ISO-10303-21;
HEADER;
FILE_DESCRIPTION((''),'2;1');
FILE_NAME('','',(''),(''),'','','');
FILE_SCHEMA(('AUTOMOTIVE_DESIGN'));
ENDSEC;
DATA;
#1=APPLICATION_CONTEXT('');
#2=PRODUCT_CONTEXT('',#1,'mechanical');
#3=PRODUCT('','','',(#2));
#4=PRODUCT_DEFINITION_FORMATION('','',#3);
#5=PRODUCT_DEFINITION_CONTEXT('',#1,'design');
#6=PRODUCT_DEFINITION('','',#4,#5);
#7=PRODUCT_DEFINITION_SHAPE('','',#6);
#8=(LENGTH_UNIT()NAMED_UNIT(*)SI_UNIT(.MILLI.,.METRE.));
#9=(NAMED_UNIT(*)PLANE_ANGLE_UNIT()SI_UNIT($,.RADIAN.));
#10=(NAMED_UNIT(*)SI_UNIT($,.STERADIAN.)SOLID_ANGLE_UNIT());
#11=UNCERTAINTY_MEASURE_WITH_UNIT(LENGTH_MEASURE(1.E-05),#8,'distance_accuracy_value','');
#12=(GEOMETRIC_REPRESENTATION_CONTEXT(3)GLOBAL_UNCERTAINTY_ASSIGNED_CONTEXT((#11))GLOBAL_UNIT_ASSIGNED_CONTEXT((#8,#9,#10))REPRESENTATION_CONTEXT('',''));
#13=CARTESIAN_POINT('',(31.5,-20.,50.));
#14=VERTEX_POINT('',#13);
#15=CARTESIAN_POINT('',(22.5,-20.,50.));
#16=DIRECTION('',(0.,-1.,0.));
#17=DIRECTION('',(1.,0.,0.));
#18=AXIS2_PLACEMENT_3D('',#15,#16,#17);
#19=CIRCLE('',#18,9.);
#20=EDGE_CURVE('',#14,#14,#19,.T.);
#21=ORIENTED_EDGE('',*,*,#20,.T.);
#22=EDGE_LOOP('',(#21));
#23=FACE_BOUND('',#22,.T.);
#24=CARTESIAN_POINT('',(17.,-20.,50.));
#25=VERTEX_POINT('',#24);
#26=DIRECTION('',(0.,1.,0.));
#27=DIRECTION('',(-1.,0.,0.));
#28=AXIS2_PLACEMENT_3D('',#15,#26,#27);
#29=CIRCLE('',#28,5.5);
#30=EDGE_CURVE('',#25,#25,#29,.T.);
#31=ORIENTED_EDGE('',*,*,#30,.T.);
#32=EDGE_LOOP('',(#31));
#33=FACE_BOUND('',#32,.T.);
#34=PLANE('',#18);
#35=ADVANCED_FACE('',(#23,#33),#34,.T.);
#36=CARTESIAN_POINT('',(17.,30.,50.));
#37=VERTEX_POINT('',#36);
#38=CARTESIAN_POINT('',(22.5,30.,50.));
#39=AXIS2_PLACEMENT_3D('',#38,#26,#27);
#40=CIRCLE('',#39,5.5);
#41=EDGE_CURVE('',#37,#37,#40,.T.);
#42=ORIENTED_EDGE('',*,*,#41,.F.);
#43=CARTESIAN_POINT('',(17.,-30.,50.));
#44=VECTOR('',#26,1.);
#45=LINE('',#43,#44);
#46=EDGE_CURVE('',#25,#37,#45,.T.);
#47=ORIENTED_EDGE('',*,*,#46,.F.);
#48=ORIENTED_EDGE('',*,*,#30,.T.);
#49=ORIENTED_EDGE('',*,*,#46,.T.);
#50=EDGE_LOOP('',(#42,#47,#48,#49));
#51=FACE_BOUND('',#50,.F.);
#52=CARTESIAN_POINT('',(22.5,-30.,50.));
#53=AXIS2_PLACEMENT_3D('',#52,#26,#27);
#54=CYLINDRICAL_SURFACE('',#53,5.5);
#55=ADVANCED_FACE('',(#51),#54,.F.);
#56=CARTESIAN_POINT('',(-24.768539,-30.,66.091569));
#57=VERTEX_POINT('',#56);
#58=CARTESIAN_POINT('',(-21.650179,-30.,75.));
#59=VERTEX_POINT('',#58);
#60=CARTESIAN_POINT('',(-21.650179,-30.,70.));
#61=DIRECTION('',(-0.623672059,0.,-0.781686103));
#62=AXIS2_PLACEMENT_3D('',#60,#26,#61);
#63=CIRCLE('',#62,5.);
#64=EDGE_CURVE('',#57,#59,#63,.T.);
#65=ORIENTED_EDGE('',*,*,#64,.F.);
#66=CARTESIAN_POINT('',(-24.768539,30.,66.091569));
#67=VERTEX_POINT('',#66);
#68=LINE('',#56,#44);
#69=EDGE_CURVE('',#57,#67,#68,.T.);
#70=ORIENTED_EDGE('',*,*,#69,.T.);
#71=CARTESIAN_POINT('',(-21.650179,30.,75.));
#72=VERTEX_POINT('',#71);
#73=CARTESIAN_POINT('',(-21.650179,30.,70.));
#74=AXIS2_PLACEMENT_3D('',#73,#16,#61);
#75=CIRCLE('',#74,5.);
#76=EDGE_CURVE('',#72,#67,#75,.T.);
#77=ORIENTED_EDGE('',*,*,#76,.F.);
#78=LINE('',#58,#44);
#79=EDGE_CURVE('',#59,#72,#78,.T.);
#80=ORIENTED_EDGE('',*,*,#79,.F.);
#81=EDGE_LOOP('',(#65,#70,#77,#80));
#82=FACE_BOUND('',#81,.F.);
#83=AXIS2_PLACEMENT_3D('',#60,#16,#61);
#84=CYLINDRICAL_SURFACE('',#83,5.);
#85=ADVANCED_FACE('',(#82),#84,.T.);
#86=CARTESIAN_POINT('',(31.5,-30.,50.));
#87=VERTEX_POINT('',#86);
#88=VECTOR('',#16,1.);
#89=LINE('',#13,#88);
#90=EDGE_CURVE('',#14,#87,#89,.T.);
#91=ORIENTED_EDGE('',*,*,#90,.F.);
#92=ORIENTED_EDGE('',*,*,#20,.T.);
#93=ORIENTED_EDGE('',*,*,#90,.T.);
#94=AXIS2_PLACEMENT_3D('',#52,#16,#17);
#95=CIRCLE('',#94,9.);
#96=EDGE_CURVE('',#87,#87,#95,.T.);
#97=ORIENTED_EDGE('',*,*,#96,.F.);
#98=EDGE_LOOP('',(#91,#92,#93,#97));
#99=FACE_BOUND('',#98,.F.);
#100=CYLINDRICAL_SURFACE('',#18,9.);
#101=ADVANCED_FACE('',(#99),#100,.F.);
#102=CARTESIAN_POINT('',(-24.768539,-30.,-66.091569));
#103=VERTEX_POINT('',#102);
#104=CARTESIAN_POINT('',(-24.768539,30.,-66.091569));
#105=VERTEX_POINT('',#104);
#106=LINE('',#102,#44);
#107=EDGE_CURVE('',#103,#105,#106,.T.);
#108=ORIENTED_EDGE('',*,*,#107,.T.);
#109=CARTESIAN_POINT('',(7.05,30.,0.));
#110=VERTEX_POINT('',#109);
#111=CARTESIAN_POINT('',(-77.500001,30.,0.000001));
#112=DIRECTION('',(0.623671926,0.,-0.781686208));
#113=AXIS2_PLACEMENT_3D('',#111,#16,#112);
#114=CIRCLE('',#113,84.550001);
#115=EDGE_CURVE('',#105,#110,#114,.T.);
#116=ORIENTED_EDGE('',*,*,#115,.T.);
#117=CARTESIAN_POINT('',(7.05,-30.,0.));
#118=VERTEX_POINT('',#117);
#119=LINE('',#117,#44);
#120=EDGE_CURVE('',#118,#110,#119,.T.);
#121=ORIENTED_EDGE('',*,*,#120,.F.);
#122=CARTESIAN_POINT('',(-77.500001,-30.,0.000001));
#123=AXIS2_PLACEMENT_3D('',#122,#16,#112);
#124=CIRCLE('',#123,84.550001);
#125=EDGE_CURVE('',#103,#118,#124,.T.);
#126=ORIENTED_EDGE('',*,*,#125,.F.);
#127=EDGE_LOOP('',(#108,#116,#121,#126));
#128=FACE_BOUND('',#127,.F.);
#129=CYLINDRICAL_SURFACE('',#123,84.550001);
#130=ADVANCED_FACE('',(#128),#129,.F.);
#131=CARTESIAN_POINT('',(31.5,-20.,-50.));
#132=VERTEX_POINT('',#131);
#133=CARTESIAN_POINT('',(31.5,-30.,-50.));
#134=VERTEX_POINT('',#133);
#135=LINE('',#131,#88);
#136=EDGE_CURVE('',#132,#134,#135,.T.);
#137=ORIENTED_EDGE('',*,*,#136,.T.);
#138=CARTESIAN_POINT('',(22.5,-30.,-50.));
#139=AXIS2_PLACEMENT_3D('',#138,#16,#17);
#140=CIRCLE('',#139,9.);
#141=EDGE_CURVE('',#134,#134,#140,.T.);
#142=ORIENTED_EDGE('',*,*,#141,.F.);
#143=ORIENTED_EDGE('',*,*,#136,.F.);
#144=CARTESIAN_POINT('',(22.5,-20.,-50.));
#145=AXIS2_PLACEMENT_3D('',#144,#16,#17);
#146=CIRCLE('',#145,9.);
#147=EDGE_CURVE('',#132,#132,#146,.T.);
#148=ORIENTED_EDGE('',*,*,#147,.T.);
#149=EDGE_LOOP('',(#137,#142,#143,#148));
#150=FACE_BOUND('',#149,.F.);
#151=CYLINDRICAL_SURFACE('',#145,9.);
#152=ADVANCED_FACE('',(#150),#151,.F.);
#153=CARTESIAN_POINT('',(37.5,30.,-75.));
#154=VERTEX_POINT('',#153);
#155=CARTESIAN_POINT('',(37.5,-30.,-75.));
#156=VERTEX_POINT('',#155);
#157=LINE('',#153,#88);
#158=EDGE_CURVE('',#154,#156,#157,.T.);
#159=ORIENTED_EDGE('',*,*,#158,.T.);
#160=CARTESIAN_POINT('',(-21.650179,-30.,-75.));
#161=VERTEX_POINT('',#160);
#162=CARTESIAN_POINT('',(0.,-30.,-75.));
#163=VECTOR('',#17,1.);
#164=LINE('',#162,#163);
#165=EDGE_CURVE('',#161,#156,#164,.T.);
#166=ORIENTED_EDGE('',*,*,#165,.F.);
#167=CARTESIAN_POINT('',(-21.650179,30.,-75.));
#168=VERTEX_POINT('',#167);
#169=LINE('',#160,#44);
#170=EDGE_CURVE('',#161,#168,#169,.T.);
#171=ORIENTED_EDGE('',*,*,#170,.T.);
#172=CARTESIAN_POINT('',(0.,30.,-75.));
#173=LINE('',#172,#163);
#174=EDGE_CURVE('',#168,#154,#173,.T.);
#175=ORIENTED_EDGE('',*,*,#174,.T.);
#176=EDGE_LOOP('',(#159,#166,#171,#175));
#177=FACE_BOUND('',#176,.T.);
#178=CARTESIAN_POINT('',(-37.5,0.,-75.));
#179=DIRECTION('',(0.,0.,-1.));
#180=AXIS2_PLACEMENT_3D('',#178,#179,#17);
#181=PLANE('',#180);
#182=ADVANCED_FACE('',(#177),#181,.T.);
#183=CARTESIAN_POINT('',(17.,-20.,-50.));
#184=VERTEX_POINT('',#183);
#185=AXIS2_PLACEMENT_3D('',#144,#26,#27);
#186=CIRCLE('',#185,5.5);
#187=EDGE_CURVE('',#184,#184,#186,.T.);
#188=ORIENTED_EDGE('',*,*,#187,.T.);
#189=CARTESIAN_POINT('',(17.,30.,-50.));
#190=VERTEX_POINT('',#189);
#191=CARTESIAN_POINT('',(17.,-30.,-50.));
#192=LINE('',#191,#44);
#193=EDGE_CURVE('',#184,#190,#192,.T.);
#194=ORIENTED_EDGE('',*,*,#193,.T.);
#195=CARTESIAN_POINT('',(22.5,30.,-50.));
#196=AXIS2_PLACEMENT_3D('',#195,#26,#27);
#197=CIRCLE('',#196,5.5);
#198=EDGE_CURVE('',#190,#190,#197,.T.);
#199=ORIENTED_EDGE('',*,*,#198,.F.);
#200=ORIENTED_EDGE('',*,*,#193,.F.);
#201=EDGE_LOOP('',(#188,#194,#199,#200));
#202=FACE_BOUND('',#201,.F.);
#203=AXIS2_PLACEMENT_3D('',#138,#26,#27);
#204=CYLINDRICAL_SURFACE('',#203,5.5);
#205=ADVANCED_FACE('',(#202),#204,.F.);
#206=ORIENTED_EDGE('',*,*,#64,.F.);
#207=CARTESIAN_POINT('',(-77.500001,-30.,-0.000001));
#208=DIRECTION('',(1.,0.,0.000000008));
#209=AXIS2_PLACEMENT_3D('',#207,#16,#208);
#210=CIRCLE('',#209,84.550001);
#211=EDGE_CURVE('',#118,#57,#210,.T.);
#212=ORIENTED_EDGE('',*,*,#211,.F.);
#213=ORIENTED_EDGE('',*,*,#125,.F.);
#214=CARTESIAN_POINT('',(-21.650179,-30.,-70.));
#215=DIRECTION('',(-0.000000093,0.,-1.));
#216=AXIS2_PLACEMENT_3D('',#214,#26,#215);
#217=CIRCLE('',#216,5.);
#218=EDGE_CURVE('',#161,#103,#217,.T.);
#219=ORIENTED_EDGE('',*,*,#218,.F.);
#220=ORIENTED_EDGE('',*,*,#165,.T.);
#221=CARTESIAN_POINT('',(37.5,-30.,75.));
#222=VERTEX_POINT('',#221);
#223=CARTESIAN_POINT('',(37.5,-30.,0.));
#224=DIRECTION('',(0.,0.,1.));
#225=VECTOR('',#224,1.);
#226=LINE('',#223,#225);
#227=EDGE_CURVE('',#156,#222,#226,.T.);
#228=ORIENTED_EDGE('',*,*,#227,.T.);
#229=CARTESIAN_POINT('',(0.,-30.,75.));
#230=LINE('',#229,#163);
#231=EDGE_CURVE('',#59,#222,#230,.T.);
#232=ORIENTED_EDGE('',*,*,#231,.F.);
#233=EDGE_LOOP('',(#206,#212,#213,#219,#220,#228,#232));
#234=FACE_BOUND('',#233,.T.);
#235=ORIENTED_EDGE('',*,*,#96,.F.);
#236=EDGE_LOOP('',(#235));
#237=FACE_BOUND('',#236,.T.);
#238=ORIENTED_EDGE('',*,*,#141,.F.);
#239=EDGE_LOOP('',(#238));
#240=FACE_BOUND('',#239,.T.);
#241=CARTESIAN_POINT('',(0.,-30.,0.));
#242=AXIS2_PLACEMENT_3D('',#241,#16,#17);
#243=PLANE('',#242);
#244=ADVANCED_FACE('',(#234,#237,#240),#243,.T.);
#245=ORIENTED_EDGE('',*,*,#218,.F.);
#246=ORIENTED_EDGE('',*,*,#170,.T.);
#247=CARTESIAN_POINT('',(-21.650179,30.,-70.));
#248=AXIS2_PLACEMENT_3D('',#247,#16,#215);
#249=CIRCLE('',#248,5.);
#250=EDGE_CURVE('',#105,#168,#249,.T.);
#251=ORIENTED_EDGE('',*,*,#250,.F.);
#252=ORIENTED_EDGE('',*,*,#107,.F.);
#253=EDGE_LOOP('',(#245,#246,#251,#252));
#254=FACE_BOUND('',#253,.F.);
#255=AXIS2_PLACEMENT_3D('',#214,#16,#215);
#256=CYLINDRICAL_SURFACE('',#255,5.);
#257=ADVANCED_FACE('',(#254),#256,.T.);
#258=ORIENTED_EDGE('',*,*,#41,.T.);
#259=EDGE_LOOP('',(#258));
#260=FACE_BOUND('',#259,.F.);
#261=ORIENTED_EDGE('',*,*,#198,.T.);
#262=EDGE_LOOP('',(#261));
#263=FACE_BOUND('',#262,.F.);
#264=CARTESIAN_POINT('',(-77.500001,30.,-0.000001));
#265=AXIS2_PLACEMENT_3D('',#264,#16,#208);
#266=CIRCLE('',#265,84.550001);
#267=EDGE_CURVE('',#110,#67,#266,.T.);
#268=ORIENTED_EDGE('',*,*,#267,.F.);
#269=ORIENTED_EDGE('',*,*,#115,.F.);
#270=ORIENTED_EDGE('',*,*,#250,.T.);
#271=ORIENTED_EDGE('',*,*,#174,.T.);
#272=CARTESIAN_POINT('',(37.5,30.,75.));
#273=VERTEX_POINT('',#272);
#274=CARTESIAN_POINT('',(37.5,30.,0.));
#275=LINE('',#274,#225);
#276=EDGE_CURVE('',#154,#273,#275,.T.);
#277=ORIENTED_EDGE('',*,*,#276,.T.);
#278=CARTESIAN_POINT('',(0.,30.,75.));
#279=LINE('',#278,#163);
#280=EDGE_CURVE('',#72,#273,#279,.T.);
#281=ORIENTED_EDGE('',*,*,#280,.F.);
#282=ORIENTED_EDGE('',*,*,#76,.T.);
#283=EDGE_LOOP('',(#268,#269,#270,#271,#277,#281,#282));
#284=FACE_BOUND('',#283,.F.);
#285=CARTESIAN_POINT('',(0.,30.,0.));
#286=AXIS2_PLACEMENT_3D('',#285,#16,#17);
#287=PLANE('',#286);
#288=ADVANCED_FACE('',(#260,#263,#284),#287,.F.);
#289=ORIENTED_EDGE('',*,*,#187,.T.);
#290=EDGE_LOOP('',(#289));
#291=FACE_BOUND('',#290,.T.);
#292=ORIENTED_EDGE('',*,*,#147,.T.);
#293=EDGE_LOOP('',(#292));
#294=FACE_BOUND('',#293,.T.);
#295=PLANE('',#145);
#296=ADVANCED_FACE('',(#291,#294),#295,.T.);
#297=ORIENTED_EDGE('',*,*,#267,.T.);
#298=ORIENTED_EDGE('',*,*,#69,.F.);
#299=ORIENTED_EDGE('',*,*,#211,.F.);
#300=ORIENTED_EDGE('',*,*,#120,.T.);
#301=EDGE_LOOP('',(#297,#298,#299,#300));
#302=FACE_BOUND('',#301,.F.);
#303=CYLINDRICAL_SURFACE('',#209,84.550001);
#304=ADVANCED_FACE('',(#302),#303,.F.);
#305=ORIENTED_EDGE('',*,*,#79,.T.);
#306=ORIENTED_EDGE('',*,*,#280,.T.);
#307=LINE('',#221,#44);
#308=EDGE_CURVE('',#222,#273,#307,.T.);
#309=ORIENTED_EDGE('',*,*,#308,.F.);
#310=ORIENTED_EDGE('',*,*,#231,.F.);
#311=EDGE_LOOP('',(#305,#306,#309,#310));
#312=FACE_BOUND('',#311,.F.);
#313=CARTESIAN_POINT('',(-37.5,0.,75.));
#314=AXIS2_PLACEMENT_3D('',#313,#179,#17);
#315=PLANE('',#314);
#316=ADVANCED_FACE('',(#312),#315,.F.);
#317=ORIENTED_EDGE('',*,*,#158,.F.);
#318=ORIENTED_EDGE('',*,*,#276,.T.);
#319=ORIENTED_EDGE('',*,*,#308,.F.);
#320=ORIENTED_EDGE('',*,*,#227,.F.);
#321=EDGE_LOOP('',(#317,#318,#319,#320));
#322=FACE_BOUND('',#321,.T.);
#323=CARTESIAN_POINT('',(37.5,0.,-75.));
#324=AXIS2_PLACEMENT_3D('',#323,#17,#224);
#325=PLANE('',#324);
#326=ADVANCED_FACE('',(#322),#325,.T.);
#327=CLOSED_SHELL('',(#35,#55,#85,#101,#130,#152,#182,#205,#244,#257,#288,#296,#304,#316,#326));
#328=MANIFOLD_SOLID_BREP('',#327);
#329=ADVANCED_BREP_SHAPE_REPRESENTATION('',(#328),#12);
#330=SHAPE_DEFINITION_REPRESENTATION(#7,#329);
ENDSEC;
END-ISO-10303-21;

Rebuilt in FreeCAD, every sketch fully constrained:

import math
import FreeCAD as App
import Part
import Sketcher
Q = App.Units.Quantity


def add_polygon(sketch, points):
    """Adds a closed chain of lines whose ends are joined by coincident constraints."""
    first, n = sketch.GeometryCount, len(points)
    for a, b in zip(points, points[1:] + points[:1]):
        sketch.addGeometry(Part.LineSegment(App.Vector(*a, 0), App.Vector(*b, 0)), False)
    for i in range(n):
        sketch.addConstraint(Sketcher.Constraint("Coincident", first + i, 2, first + (i + 1) % n, 1))

doc = App.newDocument("Part")
body = doc.addObject("PartDesign::Body", "Body")

sketch1 = body.newObject("Sketcher::SketchObject", "Sketch")
sketch1.AttachmentSupport = (doc.getObject("XZ_Plane"), [""])
sketch1.MapMode = "FlatFace"
add_polygon(sketch1, [(-37.5, 75), (-37.5, -75), (37.5, -75), (37.5, 75)])
sketch1.addConstraint([
    Sketcher.Constraint("Vertical", 0),
    Sketcher.Constraint("Horizontal", 1),
    Sketcher.Constraint("Vertical", 2),
    Sketcher.Constraint("Horizontal", 3),
    Sketcher.Constraint("Symmetric", 0, 2, 2, 2, -1, 1),
    Sketcher.Constraint("DistanceX", 1, 1, 1, 2, Q("75 mm")),
    Sketcher.Constraint("DistanceY", 0, 2, 0, 1, Q("150 mm")),
])
pad1 = body.newObject("PartDesign::Pad", "Pad")
pad1.Profile = sketch1
pad1.Length = 60
pad1.Midplane = True

sketch2 = body.newObject("Sketcher::SketchObject", "Sketch001")
sketch2.AttachmentSupport = (doc.getObject("XZ_Plane"), [""])
sketch2.MapMode = "FlatFace"
sketch2.AttachmentOffset = App.Placement(App.Vector(0, 0, 30), App.Rotation())
sketch2.addGeometry([
    Part.ArcOfCircle(Part.Circle(App.Vector(-77.500001, 0.000001, 0), App.Vector(0, 0, 1), 84.550001), math.radians(-51.415223), math.radians(0)),
    Part.ArcOfCircle(Part.Circle(App.Vector(-77.500001, -0.000001, 0), App.Vector(0, 0, 1), 84.550001), math.radians(0), math.radians(51.415223)),
    Part.ArcOfCircle(Part.Circle(App.Vector(-21.650179, 70, 0), App.Vector(0, 0, 1), 5), math.radians(90.000005), math.radians(231.415214)),
    Part.LineSegment(App.Vector(-21.650179, 75, 0), App.Vector(-37.5, 75, 0)),
    Part.LineSegment(App.Vector(-37.5, 75, 0), App.Vector(-37.5, 74.489613, 0)),
    Part.ArcOfCircle(Part.Circle(App.Vector(-77.5, 0, 0), App.Vector(0, 0, 1), 84.55), math.radians(61.764752), math.radians(298.235248)),
    Part.LineSegment(App.Vector(-37.5, -74.489613, 0), App.Vector(-37.5, -75, 0)),
    Part.LineSegment(App.Vector(-37.5, -75, 0), App.Vector(-21.650179, -75, 0)),
    Part.ArcOfCircle(Part.Circle(App.Vector(-21.650179, -70, 0), App.Vector(0, 0, 1), 5), math.radians(128.584786), math.radians(269.999995)),
], False)
sketch2.addConstraint([
    Sketcher.Constraint("Tangent", 0, 2, 1, 1),
    Sketcher.Constraint("Tangent", 1, 2, 2, 2),
    Sketcher.Constraint("Tangent", 2, 1, 3, 1),
    Sketcher.Constraint("Coincident", 3, 2, 4, 1),
    Sketcher.Constraint("Coincident", 4, 2, 5, 1),
    Sketcher.Constraint("Coincident", 5, 2, 6, 1),
    Sketcher.Constraint("Coincident", 6, 2, 7, 1),
    Sketcher.Constraint("Tangent", 7, 2, 8, 2),
    Sketcher.Constraint("Tangent", 8, 1, 0, 1),
    Sketcher.Constraint("Horizontal", 3),
    Sketcher.Constraint("Vertical", 4),
    Sketcher.Constraint("Vertical", 6),
    Sketcher.Constraint("Horizontal", 7),
    Sketcher.Constraint("Coincident", 5, 3, 0, 3),
    Sketcher.Constraint("Equal", 0, 1),
    Sketcher.Constraint("Equal", 1, 5),
    Sketcher.Constraint("Equal", 2, 8),
    Sketcher.Constraint("Symmetric", 2, 3, 8, 3, -1),
    Sketcher.Constraint("PointOnObject", 0, 2, -1),
    Sketcher.Constraint("Vertical", 4, 2, 5, 2),
    Sketcher.Constraint("Radius", 2, Q("5 mm")),
    Sketcher.Constraint("Radius", 0, Q("84.550001 mm")),
    Sketcher.Constraint("DistanceY", -1, 1, 2, 3, Q("70 mm")),
    Sketcher.Constraint("DistanceX", 0, 3, 3, 2, Q("40.000001 mm")),
    Sketcher.Constraint("DistanceX", 0, 3, -1, 1, Q("77.500001 mm")),
])
pocket1 = body.newObject("PartDesign::Pocket", "Pocket")
pocket1.Profile = sketch2
pocket1.Type = "ThroughAll"

sketch3 = body.newObject("Sketcher::SketchObject", "Sketch002")
sketch3.AttachmentSupport = (doc.getObject("XZ_Plane"), [""])
sketch3.MapMode = "FlatFace"
sketch3.AttachmentOffset = App.Placement(App.Vector(0, 0, 30), App.Rotation())
sketch3.addGeometry([
    Part.Circle(App.Vector(22.5, 50, 0), App.Vector(0, 0, 1), 5.5),
    Part.Circle(App.Vector(22.5, -50, 0), App.Vector(0, 0, 1), 5.5),
], False)
sketch3.addConstraint([
    Sketcher.Constraint("Equal", 0, 1),
    Sketcher.Constraint("Symmetric", 0, 3, 1, 3, -1),
    Sketcher.Constraint("Diameter", 0, Q("11 mm")),
    Sketcher.Constraint("DistanceY", -1, 1, 0, 3, Q("50 mm")),
    Sketcher.Constraint("DistanceX", -1, 1, 0, 3, Q("22.5 mm")),
])
doc.recompute()
hole = body.newObject("PartDesign::Hole", "Hole")
hole.Profile = sketch3
hole.ThreadType = "None"
hole.Diameter = 11
hole.DepthType = "ThroughAll"
hole.HoleCutType = "Counterbore"
hole.HoleCutDiameter = 18
hole.HoleCutDepth = 10

doc.recompute()
